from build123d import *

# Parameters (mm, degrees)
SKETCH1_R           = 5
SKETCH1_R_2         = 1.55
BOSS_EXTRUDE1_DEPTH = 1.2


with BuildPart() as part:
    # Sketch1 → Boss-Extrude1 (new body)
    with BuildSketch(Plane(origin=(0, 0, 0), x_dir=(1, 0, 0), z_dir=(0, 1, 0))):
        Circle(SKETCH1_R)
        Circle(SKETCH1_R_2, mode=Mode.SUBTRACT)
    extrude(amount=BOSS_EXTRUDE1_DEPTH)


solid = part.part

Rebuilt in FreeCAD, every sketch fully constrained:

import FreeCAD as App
import Part
import Sketcher

V = App.Vector

doc = App.newDocument("Part")
body = doc.addObject("PartDesign::Body", "Body")

# Sketch on XZ plane
sketch1 = body.newObject("Sketcher::SketchObject", "Sketch")
sketch1.AttachmentSupport = (doc.getObject("XZ_Plane"), [""])
sketch1.MapMode = "FlatFace"
sketch1.addGeometry([
    Part.Circle(V(0, 0, 0), V(0, 0, 1), 5),
    Part.Circle(V(0, 0, 0), V(0, 0, 1), 1.6),
], False)
sketch1.addConstraint([
    Sketcher.Constraint("Coincident", 0, 3, -1, 1),
    Sketcher.Constraint("Coincident", 1, 3, -1, 1),
    Sketcher.Constraint("Diameter", 0, 10.0),
    Sketcher.Constraint("Diameter", 1, 3.1),
])
pad1 = body.newObject("PartDesign::Pad", "Pad")
pad1.Profile = sketch1
pad1.Length = 1.2
pad1.Reversed = True

doc.recompute()
